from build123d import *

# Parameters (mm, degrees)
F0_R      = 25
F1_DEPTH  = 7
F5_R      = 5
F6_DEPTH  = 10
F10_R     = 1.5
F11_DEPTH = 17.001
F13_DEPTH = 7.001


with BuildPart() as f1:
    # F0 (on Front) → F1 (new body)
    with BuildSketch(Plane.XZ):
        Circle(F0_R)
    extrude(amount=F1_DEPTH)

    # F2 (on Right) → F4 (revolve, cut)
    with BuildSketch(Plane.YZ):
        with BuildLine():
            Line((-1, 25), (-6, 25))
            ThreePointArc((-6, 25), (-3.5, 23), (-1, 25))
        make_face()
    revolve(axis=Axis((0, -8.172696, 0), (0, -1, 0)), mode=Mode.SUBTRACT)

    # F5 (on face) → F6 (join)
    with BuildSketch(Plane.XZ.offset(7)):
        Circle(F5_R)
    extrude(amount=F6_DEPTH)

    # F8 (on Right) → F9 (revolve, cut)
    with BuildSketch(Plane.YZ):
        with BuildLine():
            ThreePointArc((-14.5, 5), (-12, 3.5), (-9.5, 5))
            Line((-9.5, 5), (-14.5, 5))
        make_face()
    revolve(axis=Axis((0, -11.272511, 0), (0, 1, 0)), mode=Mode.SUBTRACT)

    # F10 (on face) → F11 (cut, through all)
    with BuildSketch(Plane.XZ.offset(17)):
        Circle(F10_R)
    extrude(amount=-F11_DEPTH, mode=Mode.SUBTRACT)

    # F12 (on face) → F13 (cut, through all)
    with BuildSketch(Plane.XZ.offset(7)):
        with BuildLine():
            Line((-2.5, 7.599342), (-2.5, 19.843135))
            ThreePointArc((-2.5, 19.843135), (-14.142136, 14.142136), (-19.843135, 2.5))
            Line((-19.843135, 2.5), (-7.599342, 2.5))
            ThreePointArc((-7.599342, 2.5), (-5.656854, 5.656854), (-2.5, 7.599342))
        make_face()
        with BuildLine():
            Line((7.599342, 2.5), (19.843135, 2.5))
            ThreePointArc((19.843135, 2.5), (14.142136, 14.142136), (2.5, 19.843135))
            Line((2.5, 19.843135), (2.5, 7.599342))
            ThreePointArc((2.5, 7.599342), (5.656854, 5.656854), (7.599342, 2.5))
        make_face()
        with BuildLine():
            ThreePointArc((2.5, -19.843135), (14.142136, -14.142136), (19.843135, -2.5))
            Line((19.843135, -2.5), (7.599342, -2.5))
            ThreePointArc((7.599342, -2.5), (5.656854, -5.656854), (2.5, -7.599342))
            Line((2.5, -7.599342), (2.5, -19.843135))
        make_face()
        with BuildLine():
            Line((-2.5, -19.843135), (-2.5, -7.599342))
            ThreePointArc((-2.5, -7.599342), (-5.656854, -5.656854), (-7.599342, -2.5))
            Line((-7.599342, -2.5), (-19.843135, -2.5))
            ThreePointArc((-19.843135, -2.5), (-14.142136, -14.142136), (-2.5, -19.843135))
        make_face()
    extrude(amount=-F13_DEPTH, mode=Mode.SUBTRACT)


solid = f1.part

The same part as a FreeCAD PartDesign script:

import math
import FreeCAD as App
import Part
import Sketcher
from FreeCAD import Vector
Q = App.Units.Quantity

doc = App.newDocument("Part")
body = doc.addObject("PartDesign::Body", "Body")

# Sketch on XZ plane
sketch1 = body.newObject("Sketcher::SketchObject", "Sketch")
sketch1.AttachmentSupport = (doc.getObject("XZ_Plane"), [""])
sketch1.MapMode = "FlatFace"
sketch1.addGeometry(Part.Circle(Vector(0, 0, 0), Vector(0, 0, 1), 25), False)
sketch1.addConstraint(Sketcher.Constraint("Coincident", 0, 3, -1, 1))
sketch1.addConstraint(Sketcher.Constraint("Diameter", 0, Q("50 mm")))
pad1 = body.newObject("PartDesign::Pad", "Pad")
pad1.Profile = sketch1
pad1.Length = 7

# Sketch on YZ plane
sketch2 = body.newObject("Sketcher::SketchObject", "Sketch001")
sketch2.AttachmentSupport = (doc.getObject("YZ_Plane"), [""])
sketch2.MapMode = "FlatFace"
sketch2.addGeometry(Part.LineSegment(Vector(-1, 25, 0), Vector(-6, 25, 0)), False)
sketch2.addGeometry(Part.ArcOfCircle(Part.Circle(Vector(-3.5, 25.6, 0), Vector(0, 0, 1), 2.6), math.radians(-167), math.radians(-13)), False)
sketch2.addConstraint(Sketcher.Constraint("Coincident", 0, 1, 1, 2))
sketch2.addConstraint(Sketcher.Constraint("Coincident", 1, 1, 0, 2))
sketch2.addConstraint(Sketcher.Constraint("Horizontal", 0))
sketch2.addConstraint(Sketcher.Constraint("DistanceX", 0, 2, 0, 1, Q("5 mm")))
sketch2.addConstraint(Sketcher.Constraint("DistanceX", 0, 1, -1, 1, Q("1 mm")))
sketch2.addConstraint(Sketcher.Constraint("DistanceY", -1, 1, 0, 1, Q("25 mm")))
sketch2.addConstraint(Sketcher.Constraint("Radius", 1, Q("2.5625 mm")))
groove = body.newObject("PartDesign::Groove", "Groove")
groove.Profile = sketch2
groove.ReferenceAxis = (sketch2, ["H_Axis"])
groove.Angle = 360

# Sketch on XZ plane
sketch3 = body.newObject("Sketcher::SketchObject", "Sketch002")
sketch3.AttachmentSupport = (doc.getObject("XZ_Plane"), [""])
sketch3.MapMode = "FlatFace"
sketch3.AttachmentOffset = App.Placement(Vector(0, 0, 7), App.Rotation())
sketch3.addGeometry(Part.Circle(Vector(0, 0, 0), Vector(0, 0, 1), 5), False)
sketch3.addConstraint(Sketcher.Constraint("Coincident", 0, 3, -1, 1))
sketch3.addConstraint(Sketcher.Constraint("Diameter", 0, Q("10 mm")))
pad2 = body.newObject("PartDesign::Pad", "Pad001")
pad2.Profile = sketch3
pad2.Length = 10

# Sketch on YZ plane
sketch4 = body.newObject("Sketcher::SketchObject", "Sketch003")
sketch4.AttachmentSupport = (doc.getObject("YZ_Plane"), [""])
sketch4.MapMode = "FlatFace"
sketch4.addGeometry(Part.ArcOfCircle(Part.Circle(Vector(-12, 6.3, 0), Vector(0, 0, 1), 2.8), math.radians(-152), math.radians(-28)), False)
sketch4.addGeometry(Part.LineSegment(Vector(-9.5, 5, 0), Vector(-14.5, 5, 0)), False)
sketch4.addConstraint(Sketcher.Constraint("Coincident", 0, 1, 1, 2))
sketch4.addConstraint(Sketcher.Constraint("Coincident", 1, 1, 0, 2))
sketch4.addConstraint(Sketcher.Constraint("Horizontal", 1))
sketch4.addConstraint(Sketcher.Constraint("DistanceX", 1, 2, 1, 1, Q("5 mm")))
sketch4.addConstraint(Sketcher.Constraint("DistanceX", 0, 3, -1, 1, Q("12 mm")))
sketch4.addConstraint(Sketcher.Constraint("DistanceY", -1, 1, 0, 1, Q("5 mm")))
sketch4.addConstraint(Sketcher.Constraint("Radius", 0, Q("2.833333 mm")))
groove2 = body.newObject("PartDesign::Groove", "Groove001")
groove2.Profile = sketch4
groove2.ReferenceAxis = (sketch4, ["H_Axis"])
groove2.Angle = 360

# Sketch on XZ plane
sketch5 = body.newObject("Sketcher::SketchObject", "Sketch004")
sketch5.AttachmentSupport = (doc.getObject("XZ_Plane"), [""])
sketch5.MapMode = "FlatFace"
sketch5.AttachmentOffset = App.Placement(Vector(0, 0, 17), App.Rotation())
sketch5.addGeometry(Part.Circle(Vector(0, 0, 0), Vector(0, 0, 1), 1.5), False)
sketch5.addConstraint(Sketcher.Constraint("Coincident", 0, 3, -1, 1))
sketch5.addConstraint(Sketcher.Constraint("Diameter", 0, Q("3 mm")))
pocket1 = body.newObject("PartDesign::Pocket", "Pocket")
pocket1.Profile = sketch5
pocket1.Type = "ThroughAll"

# Sketch on XZ plane
sketch6 = body.newObject("Sketcher::SketchObject", "Sketch005")
sketch6.AttachmentSupport = (doc.getObject("XZ_Plane"), [""])
sketch6.MapMode = "FlatFace"
sketch6.AttachmentOffset = App.Placement(Vector(0, 0, 7), App.Rotation())
sketch6.addGeometry(Part.LineSegment(Vector(-2, 8, 0), Vector(-2, 20, 0)), False)
sketch6.addGeometry(Part.ArcOfCircle(Part.Circle(Vector(0, 0, 0), Vector(0, 0, 1), 20), math.radians(97), math.radians(173)), False)
sketch6.addGeometry(Part.LineSegment(Vector(-20, 2, 0), Vector(-8, 2, 0)), False)
sketch6.addGeometry(Part.ArcOfCircle(Part.Circle(Vector(0, 0, 0), Vector(0, 0, 1), 8), math.radians(108), math.radians(162)), False)
sketch6.addGeometry(Part.LineSegment(Vector(8, 2, 0), Vector(20, 2, 0)), False)
sketch6.addGeometry(Part.ArcOfCircle(Part.Circle(Vector(0, 0, 0), Vector(0, 0, 1), 20), math.radians(7), math.radians(83)), False)
sketch6.addGeometry(Part.LineSegment(Vector(2, 20, 0), Vector(2, 8, 0)), False)
sketch6.addGeometry(Part.ArcOfCircle(Part.Circle(Vector(0, 0, 0), Vector(0, 0, 1), 8), math.radians(18), math.radians(72)), False)
sketch6.addGeometry(Part.ArcOfCircle(Part.Circle(Vector(0, 0, 0), Vector(0, 0, 1), 20), math.radians(-83), math.radians(-7)), False)
sketch6.addGeometry(Part.LineSegment(Vector(20, -2, 0), Vector(8, -2, 0)), False)
sketch6.addGeometry(Part.ArcOfCircle(Part.Circle(Vector(0, 0, 0), Vector(0, 0, 1), 8), math.radians(-72), math.radians(-18)), False)
sketch6.addGeometry(Part.LineSegment(Vector(2, -8, 0), Vector(2, -20, 0)), False)
sketch6.addGeometry(Part.LineSegment(Vector(-2, -20, 0), Vector(-2, -8, 0)), False)
sketch6.addGeometry(Part.ArcOfCircle(Part.Circle(Vector(0, 0, 0), Vector(0, 0, 1), 8), math.radians(-162), math.radians(-108)), False)
sketch6.addGeometry(Part.LineSegment(Vector(-8, -2, 0), Vector(-20, -2, 0)), False)
sketch6.addGeometry(Part.ArcOfCircle(Part.Circle(Vector(0, 0, 0), Vector(0, 0, 1), 20), math.radians(-173), math.radians(-97)), False)
sketch6.addConstraint(Sketcher.Constraint("Coincident", 0, 2, 1, 1))
sketch6.addConstraint(Sketcher.Constraint("Coincident", 1, 2, 2, 1))
sketch6.addConstraint(Sketcher.Constraint("Coincident", 2, 2, 3, 2))
sketch6.addConstraint(Sketcher.Constraint("Coincident", 3, 1, 0, 1))
sketch6.addConstraint(Sketcher.Constraint("Coincident", 4, 2, 5, 1))
sketch6.addConstraint(Sketcher.Constraint("Coincident", 5, 2, 6, 1))
sketch6.addConstraint(Sketcher.Constraint("Coincident", 6, 2, 7, 2))
sketch6.addConstraint(Sketcher.Constraint("Coincident", 7, 1, 4, 1))
sketch6.addConstraint(Sketcher.Constraint("Coincident", 8, 2, 9, 1))
sketch6.addConstraint(Sketcher.Constraint("Coincident", 9, 2, 10, 2))
sketch6.addConstraint(Sketcher.Constraint("Coincident", 10, 1, 11, 1))
sketch6.addConstraint(Sketcher.Constraint("Coincident", 11, 2, 8, 1))
sketch6.addConstraint(Sketcher.Constraint("Coincident", 12, 2, 13, 2))
sketch6.addConstraint(Sketcher.Constraint("Coincident", 13, 1, 14, 1))
sketch6.addConstraint(Sketcher.Constraint("Coincident", 14, 2, 15, 1))
sketch6.addConstraint(Sketcher.Constraint("Coincident", 15, 2, 12, 1))
sketch6.addConstraint(Sketcher.Constraint("Vertical", 0))
sketch6.addConstraint(Sketcher.Constraint("Horizontal", 2))
sketch6.addConstraint(Sketcher.Constraint("Horizontal", 4))
sketch6.addConstraint(Sketcher.Constraint("Vertical", 6))
sketch6.addConstraint(Sketcher.Constraint("Horizontal", 9))
sketch6.addConstraint(Sketcher.Constraint("Vertical", 11))
sketch6.addConstraint(Sketcher.Constraint("Vertical", 12))
sketch6.addConstraint(Sketcher.Constraint("Horizontal", 14))
sketch6.addConstraint(Sketcher.Constraint("Coincident", 1, 3, -1, 1))
sketch6.addConstraint(Sketcher.Constraint("Coincident", 3, 3, -1, 1))
sketch6.addConstraint(Sketcher.Constraint("Coincident", 5, 3, -1, 1))
sketch6.addConstraint(Sketcher.Constraint("Coincident", 7, 3, -1, 1))
sketch6.addConstraint(Sketcher.Constraint("Coincident", 8, 3, -1, 1))
sketch6.addConstraint(Sketcher.Constraint("Coincident", 10, 3, -1, 1))
sketch6.addConstraint(Sketcher.Constraint("Coincident", 13, 3, -1, 1))
sketch6.addConstraint(Sketcher.Constraint("Coincident", 15, 3, -1, 1))
sketch6.addConstraint(Sketcher.Constraint("Equal", 1, 5))
sketch6.addConstraint(Sketcher.Constraint("Equal", 3, 7))
sketch6.addConstraint(Sketcher.Constraint("Equal", 5, 8))
sketch6.addConstraint(Sketcher.Constraint("Equal", 7, 10))
sketch6.addConstraint(Sketcher.Constraint("Equal", 10, 13))
sketch6.addConstraint(Sketcher.Constraint("Equal", 8, 15))
sketch6.addConstraint(Sketcher.Constraint("Horizontal", 2, 2, 4, 2))
sketch6.addConstraint(Sketcher.Constraint("Horizontal", 0, 2, 5, 2))
sketch6.addConstraint(Sketcher.Constraint("Horizontal", 10, 1, 12, 2))
sketch6.addConstraint(Sketcher.Constraint("Horizontal", 9, 2, 13, 1))
sketch6.addConstraint(Sketcher.Constraint("Vertical", 4, 2, 8, 2))
sketch6.addConstraint(Sketcher.Constraint("Vertical", 6, 2, 10, 1))
sketch6.addConstraint(Sketcher.Constraint("Equal", 14, 0))
sketch6.addConstraint(Sketcher.Constraint("Radius", 1, Q("19.999999 mm")))
sketch6.addConstraint(Sketcher.Constraint("DistanceX", 0, 2, 5, 2, Q("5 mm")))
sketch6.addConstraint(Sketcher.Constraint("Radius", 3, Q("8.000002 mm")))
pocket2 = body.newObject("PartDesign::Pocket", "Pocket001")
pocket2.Profile = sketch6
pocket2.Type = "ThroughAll"

doc.recompute()
